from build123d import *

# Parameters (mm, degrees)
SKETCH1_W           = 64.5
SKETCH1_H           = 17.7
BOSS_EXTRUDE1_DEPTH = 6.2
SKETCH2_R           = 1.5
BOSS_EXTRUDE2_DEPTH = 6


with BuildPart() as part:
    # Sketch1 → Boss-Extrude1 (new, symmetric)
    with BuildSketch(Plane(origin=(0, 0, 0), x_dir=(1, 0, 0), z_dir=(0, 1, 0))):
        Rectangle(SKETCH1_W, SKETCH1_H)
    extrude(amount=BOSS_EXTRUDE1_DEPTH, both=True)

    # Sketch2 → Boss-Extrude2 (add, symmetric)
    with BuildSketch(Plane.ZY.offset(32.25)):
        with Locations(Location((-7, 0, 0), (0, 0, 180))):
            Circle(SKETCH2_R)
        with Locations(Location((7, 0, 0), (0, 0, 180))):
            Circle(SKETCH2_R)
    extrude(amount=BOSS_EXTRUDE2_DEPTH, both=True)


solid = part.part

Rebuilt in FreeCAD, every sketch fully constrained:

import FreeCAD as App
import Part
import Sketcher
Q = App.Units.Quantity

doc = App.newDocument("Part")
body = doc.addObject("PartDesign::Body", "Body")

# Sketch on XZ plane
sketch1 = doc.addObject("Sketcher::SketchObject", "Sketch")
body.addObject(sketch1)
sketch1.AttachmentSupport = (doc.XZ_Plane, [""])
sketch1.MapMode = "FlatFace"
sketch1.addGeometry([
    Part.LineSegment(App.Vector(-32, -9, 0), App.Vector(-32, 9, 0)),
    Part.LineSegment(App.Vector(-32, 9, 0), App.Vector(32, 9, 0)),
    Part.LineSegment(App.Vector(32, 9, 0), App.Vector(32, -9, 0)),
    Part.LineSegment(App.Vector(32, -9, 0), App.Vector(-32, -9, 0)),
], False)
sketch1.addConstraint([
    Sketcher.Constraint("Coincident", 0, 2, 1, 1),
    Sketcher.Constraint("Coincident", 1, 2, 2, 1),
    Sketcher.Constraint("Coincident", 2, 2, 3, 1),
    Sketcher.Constraint("Coincident", 3, 2, 0, 1),
    Sketcher.Constraint("Vertical", 0),
    Sketcher.Constraint("Horizontal", 1),
    Sketcher.Constraint("Vertical", 2),
    Sketcher.Constraint("Horizontal", 3),
    Sketcher.Constraint("Symmetric", 0, 2, 2, 2, -1, 1),
    Sketcher.Constraint("DistanceX", 1, 1, 1, 2, Q("64.5 mm")),
    Sketcher.Constraint("DistanceY", 0, 1, 0, 2, Q("17.7 mm")),
])
pad1 = doc.addObject("PartDesign::Pad", "Pad")
body.addObject(pad1)
pad1.Profile = sketch1
pad1.Length = 12.4
pad1.Midplane = True

# Sketch on YZ plane
sketch2 = doc.addObject("Sketcher::SketchObject", "Sketch001")
body.addObject(sketch2)
sketch2.AttachmentSupport = (doc.YZ_Plane, [""])
sketch2.MapMode = "FlatFace"
sketch2.AttachmentOffset = App.Placement(App.Vector(0, 0, -32.25), App.Rotation())
sketch2.addGeometry([
    Part.Circle(App.Vector(0, -7, 0), App.Vector(0, 0, 1), 1.5),
    Part.Circle(App.Vector(0, 7, 0), App.Vector(0, 0, 1), 1.5),
], False)
sketch2.addConstraint([
    Sketcher.Constraint("Equal", 0, 1),
    Sketcher.Constraint("Symmetric", 0, 3, 1, 3, -1, 1),
    Sketcher.Constraint("PointOnObject", 0, 3, -2),
    Sketcher.Constraint("Diameter", 0, Q("3 mm")),
    Sketcher.Constraint("DistanceY", 0, 3, -1, 1, Q("7 mm")),
])
pad2 = doc.addObject("PartDesign::Pad", "Pad001")
body.addObject(pad2)
pad2.Profile = sketch2
pad2.Length = 12
pad2.Midplane = True

doc.recompute()
